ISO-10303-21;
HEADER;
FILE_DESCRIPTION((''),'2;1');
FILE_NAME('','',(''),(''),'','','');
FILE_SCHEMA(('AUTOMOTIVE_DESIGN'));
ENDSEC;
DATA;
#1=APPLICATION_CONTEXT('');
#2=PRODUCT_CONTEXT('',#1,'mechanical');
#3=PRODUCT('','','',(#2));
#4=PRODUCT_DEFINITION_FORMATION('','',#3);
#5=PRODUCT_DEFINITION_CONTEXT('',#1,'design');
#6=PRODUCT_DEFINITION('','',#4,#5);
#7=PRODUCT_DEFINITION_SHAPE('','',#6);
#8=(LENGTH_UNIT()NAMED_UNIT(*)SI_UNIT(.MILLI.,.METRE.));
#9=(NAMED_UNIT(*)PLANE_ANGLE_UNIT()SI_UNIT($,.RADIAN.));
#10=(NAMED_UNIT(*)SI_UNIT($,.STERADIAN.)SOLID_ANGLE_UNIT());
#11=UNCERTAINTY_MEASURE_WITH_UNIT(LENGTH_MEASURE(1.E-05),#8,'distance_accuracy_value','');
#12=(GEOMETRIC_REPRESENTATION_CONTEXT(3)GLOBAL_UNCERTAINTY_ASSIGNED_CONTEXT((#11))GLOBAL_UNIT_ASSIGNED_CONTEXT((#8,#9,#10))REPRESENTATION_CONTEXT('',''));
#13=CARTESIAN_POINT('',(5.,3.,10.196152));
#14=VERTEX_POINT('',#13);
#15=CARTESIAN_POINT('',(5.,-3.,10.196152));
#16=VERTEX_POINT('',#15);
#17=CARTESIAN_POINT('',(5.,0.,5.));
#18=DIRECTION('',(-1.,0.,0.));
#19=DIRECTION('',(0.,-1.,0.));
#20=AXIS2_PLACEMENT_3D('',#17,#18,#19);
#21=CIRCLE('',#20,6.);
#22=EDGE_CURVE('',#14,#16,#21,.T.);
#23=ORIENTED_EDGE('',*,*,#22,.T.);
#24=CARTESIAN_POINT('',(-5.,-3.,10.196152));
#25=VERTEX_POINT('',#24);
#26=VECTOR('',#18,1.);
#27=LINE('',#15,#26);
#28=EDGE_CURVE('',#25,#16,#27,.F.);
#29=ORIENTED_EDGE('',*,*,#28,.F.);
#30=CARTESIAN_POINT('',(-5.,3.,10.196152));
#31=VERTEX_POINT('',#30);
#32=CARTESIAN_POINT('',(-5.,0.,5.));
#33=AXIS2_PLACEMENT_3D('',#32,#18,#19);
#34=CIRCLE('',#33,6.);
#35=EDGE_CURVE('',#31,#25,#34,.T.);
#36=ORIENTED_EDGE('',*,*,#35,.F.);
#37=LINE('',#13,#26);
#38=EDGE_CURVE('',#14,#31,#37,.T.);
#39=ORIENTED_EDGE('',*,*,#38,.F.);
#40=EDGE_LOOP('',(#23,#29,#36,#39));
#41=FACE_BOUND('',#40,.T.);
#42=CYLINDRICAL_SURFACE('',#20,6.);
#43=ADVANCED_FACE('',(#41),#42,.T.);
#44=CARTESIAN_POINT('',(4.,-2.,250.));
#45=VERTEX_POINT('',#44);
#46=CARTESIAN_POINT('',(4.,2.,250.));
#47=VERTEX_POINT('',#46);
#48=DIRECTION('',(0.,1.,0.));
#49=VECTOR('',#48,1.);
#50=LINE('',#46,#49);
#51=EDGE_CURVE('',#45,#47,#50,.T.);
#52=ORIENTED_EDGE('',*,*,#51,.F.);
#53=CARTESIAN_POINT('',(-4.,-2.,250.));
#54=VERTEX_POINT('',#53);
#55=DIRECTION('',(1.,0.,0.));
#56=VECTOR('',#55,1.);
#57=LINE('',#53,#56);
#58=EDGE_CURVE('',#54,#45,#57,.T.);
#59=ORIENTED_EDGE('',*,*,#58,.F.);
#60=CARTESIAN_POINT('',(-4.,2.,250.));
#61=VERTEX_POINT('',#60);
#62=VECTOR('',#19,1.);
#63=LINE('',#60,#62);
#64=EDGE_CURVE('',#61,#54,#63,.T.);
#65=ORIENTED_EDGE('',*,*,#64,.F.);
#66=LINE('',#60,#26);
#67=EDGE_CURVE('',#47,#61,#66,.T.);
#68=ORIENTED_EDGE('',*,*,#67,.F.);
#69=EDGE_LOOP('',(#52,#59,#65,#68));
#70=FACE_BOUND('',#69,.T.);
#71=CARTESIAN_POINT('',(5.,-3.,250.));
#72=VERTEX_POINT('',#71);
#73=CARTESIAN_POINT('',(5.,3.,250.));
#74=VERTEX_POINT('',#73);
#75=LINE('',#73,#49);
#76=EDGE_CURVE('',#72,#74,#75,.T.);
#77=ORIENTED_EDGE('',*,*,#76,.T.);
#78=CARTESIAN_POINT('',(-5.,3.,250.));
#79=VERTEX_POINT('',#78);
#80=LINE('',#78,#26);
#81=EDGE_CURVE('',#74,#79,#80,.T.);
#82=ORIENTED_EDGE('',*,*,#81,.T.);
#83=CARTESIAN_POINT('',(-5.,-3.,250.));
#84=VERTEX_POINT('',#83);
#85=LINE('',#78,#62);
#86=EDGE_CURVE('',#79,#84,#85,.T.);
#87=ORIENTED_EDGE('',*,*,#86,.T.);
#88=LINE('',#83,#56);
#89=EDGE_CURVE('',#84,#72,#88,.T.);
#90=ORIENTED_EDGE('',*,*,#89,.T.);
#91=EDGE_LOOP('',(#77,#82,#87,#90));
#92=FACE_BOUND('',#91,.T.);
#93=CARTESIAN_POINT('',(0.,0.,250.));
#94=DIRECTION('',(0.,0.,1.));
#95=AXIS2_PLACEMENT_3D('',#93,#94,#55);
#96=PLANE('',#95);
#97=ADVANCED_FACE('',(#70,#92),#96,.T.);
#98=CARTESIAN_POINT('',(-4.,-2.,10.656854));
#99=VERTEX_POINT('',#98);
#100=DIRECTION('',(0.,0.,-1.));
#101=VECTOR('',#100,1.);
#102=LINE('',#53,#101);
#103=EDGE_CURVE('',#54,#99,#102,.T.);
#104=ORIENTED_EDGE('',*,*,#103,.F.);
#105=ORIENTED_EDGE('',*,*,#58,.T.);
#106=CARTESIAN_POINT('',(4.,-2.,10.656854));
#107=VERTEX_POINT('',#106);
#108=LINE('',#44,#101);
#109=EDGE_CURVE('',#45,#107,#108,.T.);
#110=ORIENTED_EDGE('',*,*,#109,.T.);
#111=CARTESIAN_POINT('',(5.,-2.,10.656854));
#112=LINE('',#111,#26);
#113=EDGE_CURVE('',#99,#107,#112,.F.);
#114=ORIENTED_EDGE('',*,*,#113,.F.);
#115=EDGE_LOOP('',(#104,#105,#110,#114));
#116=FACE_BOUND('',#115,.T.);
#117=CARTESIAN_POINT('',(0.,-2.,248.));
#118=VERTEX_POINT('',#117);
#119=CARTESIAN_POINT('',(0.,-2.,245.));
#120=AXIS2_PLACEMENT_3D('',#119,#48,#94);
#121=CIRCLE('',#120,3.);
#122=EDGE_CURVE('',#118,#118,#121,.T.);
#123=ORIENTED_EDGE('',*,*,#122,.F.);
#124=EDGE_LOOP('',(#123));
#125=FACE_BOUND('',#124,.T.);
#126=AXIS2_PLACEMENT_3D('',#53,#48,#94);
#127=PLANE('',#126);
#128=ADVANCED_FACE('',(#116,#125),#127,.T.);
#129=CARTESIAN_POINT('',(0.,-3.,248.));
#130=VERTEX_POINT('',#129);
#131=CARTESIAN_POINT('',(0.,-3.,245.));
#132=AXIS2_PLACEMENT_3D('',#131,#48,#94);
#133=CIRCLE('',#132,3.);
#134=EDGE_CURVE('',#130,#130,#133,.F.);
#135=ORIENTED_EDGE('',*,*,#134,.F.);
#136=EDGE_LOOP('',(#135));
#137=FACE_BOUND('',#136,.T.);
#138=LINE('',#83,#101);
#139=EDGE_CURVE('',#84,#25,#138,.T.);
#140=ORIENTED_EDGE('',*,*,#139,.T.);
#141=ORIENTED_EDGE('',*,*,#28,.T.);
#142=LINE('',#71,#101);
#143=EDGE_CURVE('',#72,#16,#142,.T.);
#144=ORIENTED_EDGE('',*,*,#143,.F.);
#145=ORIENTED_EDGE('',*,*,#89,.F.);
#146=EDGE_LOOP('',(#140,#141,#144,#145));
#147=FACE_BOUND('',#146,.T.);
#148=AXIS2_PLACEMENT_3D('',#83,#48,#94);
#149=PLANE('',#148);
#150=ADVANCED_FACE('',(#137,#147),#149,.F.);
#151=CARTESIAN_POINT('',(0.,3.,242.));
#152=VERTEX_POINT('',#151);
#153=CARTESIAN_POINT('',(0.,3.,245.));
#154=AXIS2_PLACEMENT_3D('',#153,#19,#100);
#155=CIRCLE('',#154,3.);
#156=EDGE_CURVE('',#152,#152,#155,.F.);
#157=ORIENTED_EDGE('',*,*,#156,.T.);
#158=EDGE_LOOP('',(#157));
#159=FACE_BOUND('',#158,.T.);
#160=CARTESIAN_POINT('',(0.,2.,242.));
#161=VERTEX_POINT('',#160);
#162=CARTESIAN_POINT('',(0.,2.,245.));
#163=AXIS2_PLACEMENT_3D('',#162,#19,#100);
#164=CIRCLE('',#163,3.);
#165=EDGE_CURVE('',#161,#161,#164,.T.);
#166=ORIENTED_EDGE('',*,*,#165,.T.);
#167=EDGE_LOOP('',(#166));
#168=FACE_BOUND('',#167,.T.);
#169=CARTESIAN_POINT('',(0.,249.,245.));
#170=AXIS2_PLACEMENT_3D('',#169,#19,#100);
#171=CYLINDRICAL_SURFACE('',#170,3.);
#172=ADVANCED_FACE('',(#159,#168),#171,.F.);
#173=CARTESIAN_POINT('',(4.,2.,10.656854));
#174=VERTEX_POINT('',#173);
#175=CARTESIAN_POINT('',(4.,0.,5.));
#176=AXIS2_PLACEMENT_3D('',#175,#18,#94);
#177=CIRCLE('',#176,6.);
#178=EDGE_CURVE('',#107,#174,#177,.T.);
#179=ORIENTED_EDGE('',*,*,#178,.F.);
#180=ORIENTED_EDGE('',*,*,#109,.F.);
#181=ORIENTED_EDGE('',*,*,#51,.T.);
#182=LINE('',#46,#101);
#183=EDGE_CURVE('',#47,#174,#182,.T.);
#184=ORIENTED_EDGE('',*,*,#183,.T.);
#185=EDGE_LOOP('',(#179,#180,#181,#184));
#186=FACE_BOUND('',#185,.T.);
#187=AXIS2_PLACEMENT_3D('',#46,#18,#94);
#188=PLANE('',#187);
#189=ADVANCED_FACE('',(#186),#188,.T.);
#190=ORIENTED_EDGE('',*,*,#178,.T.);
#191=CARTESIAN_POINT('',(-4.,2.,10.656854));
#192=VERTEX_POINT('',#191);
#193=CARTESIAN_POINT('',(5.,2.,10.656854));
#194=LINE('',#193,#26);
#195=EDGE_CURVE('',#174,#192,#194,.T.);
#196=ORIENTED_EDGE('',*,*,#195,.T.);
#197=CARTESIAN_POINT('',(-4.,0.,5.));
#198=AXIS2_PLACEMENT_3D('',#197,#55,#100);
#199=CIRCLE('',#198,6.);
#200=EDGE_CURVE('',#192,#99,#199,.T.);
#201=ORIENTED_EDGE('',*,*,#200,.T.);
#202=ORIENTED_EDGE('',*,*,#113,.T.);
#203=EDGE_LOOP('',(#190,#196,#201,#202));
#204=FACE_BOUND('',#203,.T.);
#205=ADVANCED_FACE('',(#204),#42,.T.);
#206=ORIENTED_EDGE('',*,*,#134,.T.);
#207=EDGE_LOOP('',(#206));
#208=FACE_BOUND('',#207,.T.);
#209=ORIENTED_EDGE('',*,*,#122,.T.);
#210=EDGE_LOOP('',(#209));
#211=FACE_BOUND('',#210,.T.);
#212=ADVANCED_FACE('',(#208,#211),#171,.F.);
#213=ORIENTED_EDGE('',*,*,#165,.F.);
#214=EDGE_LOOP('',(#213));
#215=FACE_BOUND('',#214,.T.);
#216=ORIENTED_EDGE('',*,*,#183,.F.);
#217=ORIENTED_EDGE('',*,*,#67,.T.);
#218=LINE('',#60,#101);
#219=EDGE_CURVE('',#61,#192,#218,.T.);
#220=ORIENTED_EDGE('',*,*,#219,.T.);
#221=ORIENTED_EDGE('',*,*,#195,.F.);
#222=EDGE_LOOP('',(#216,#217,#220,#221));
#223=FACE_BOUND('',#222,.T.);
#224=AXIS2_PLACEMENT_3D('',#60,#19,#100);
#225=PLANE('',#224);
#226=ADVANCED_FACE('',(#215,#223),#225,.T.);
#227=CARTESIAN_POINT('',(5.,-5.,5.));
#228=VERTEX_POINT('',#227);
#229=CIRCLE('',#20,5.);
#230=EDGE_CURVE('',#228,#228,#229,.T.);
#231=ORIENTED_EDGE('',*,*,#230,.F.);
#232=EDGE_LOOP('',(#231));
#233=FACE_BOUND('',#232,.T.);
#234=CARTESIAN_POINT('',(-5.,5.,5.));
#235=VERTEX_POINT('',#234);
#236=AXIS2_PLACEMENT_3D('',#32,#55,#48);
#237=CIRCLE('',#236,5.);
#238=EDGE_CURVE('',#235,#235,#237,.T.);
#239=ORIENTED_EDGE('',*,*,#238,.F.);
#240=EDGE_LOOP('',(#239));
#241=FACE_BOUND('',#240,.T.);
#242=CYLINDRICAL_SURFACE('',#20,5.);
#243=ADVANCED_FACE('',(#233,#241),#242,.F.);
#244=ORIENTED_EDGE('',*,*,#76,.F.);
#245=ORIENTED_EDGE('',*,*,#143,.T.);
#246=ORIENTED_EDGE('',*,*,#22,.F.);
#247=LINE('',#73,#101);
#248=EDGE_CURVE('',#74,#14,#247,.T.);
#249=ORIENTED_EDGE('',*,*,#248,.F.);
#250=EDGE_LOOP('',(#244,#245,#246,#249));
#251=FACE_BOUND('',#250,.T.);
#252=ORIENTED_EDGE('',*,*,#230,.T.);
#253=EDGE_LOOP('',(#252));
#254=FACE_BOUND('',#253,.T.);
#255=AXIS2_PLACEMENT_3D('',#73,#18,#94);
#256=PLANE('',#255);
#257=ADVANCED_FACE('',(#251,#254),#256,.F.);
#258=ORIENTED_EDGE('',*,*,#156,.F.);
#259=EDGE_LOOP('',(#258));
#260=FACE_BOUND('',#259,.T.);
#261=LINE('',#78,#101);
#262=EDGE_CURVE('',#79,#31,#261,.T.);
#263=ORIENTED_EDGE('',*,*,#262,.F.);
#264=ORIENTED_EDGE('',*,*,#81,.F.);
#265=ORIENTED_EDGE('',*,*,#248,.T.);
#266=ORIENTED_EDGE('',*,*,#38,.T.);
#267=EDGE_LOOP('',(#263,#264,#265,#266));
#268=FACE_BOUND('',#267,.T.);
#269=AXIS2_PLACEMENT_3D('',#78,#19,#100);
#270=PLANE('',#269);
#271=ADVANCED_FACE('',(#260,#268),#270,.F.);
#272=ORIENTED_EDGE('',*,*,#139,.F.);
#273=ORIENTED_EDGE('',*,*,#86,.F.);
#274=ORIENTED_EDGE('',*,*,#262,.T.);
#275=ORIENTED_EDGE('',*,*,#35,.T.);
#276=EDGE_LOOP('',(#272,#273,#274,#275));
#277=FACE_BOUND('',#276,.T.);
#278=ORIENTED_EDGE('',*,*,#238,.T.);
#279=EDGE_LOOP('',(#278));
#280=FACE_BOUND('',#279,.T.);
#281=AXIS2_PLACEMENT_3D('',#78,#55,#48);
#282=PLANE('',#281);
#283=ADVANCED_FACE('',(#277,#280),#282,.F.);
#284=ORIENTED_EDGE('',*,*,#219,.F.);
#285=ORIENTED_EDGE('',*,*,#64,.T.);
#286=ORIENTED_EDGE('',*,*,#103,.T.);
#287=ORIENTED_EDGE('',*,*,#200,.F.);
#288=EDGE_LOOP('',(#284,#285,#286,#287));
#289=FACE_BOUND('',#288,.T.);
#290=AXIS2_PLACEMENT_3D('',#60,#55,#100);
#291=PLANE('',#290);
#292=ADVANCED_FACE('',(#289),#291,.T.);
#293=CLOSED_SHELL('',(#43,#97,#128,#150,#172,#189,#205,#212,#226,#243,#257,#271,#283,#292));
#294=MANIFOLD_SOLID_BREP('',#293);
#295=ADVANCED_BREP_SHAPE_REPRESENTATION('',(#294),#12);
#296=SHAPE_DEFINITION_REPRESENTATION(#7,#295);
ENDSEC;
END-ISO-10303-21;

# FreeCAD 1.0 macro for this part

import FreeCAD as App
import Part
import Sketcher
Q = App.Units.Quantity


def add_polygon(sketch, points):
    """Adds a closed chain of lines whose ends are joined by coincident constraints."""
    first, n = sketch.GeometryCount, len(points)
    for a, b in zip(points, points[1:] + points[:1]):
        sketch.addGeometry(Part.LineSegment(App.Vector(*a, 0), App.Vector(*b, 0)), False)
    for i in range(n):
        sketch.addConstraint(Sketcher.Constraint("Coincident", first + i, 2, first + (i + 1) % n, 1))

doc = App.newDocument("Part")
params = doc.addObject("Spreadsheet::Sheet", "Params")
for row, (alias, value) in enumerate([
    ("sketch1_width", "10 mm"),
    ("sketch1_height", "6 mm"),
    ("pad1_length", "250 mm"),
    ("sketch2_diameter", "6 mm"),
    ("sketch3_width", "8 mm"),
    ("sketch3_height", "4 mm"),
    ("sketch4_diameter", "12 mm"),
    ("pad2_length", "10 mm"),
    ("sketch5_diameter", "10 mm"),
], start=1):
    params.set(f"A{row}", alias)
    params.set(f"B{row}", "=" + value)
    params.setAlias(f"B{row}", alias)

body = doc.addObject("PartDesign::Body", "Body")

sketch1 = doc.addObject("Sketcher::SketchObject", "Sketch")
body.addObject(sketch1)
sketch1.AttachmentSupport = (doc.XY_Plane, [""])
sketch1.MapMode = "FlatFace"
add_polygon(sketch1, [(-5, 3), (-5, -3), (5, -3), (5, 3)])
sketch1.addConstraint([
    Sketcher.Constraint("Vertical", 0),
    Sketcher.Constraint("Horizontal", 1),
    Sketcher.Constraint("Vertical", 2),
    Sketcher.Constraint("Horizontal", 3),
    Sketcher.Constraint("Symmetric", 0, 2, 2, 2, -1, 1),
    Sketcher.Constraint("DistanceX", 1, 1, 1, 2, Q("10 mm")),
    Sketcher.Constraint("DistanceY", 0, 2, 0, 1, Q("6 mm")),
])
sketch1.setExpression("Constraints[9]", "Params.sketch1_width")
sketch1.setExpression("Constraints[10]", "Params.sketch1_height")
pad1 = doc.addObject("PartDesign::Pad", "Pad")
body.addObject(pad1)
pad1.Profile = sketch1
pad1.setExpression("Length", "Params.pad1_length")

sketch2 = doc.addObject("Sketcher::SketchObject", "Sketch001")
body.addObject(sketch2)
sketch2.AttachmentSupport = (doc.XZ_Plane, [""])
sketch2.MapMode = "FlatFace"
sketch2.addGeometry(Part.Circle(App.Vector(0, 245, 0), App.Vector(0, 0, 1), 3), False)
sketch2.addConstraint([
    Sketcher.Constraint("PointOnObject", 0, 3, -2),
    Sketcher.Constraint("Diameter", 0, Q("6 mm")),
    Sketcher.Constraint("DistanceY", -1, 1, 0, 3, Q("245 mm")),
])
sketch2.setExpression("Constraints[1]", "Params.sketch2_diameter")
pocket1 = doc.addObject("PartDesign::Pocket", "Pocket")
body.addObject(pocket1)
pocket1.Profile = sketch2
pocket1.Type = "ThroughAll"
pocket1.Midplane = True

sketch3 = doc.addObject("Sketcher::SketchObject", "Sketch002")
body.addObject(sketch3)
sketch3.AttachmentSupport = (doc.XY_Plane, [""])
sketch3.MapMode = "FlatFace"
add_polygon(sketch3, [(-4, 2), (-4, -2), (4, -2), (4, 2)])
sketch3.addConstraint([
    Sketcher.Constraint("Vertical", 0),
    Sketcher.Constraint("Horizontal", 1),
    Sketcher.Constraint("Vertical", 2),
    Sketcher.Constraint("Horizontal", 3),
    Sketcher.Constraint("Symmetric", 0, 2, 2, 2, -1, 1),
    Sketcher.Constraint("DistanceX", 1, 1, 1, 2, Q("8 mm")),
    Sketcher.Constraint("DistanceY", 0, 2, 0, 1, Q("4 mm")),
])
sketch3.setExpression("Constraints[9]", "Params.sketch3_width")
sketch3.setExpression("Constraints[10]", "Params.sketch3_height")
pocket2 = doc.addObject("PartDesign::Pocket", "Pocket001")
body.addObject(pocket2)
pocket2.Profile = sketch3
pocket2.Type = "ThroughAll"
pocket2.Midplane = True

sketch4 = doc.addObject("Sketcher::SketchObject", "Sketch003")
body.addObject(sketch4)
sketch4.AttachmentSupport = (doc.YZ_Plane, [""])
sketch4.MapMode = "FlatFace"
sketch4.AttachmentOffset = App.Placement(App.Vector(0, 0, -5), App.Rotation())
sketch4.addGeometry(Part.Circle(App.Vector(0, 5, 0), App.Vector(0, 0, 1), 6), False)
sketch4.addConstraint([
    Sketcher.Constraint("PointOnObject", 0, 3, -2),
    Sketcher.Constraint("Diameter", 0, Q("12 mm")),
    Sketcher.Constraint("DistanceY", -1, 1, 0, 3, Q("5 mm")),
])
sketch4.setExpression("Constraints[1]", "Params.sketch4_diameter")
pad2 = doc.addObject("PartDesign::Pad", "Pad001")
body.addObject(pad2)
pad2.Profile = sketch4
pad2.setExpression("Length", "Params.pad2_length")

sketch5 = doc.addObject("Sketcher::SketchObject", "Sketch004")
body.addObject(sketch5)
sketch5.AttachmentSupport = (doc.YZ_Plane, [""])
sketch5.MapMode = "FlatFace"
sketch5.AttachmentOffset = App.Placement(App.Vector(0, 0, -5), App.Rotation())
sketch5.addGeometry(Part.Circle(App.Vector(0, 5, 0), App.Vector(0, 0, 1), 5), False)
sketch5.addConstraint([
    Sketcher.Constraint("PointOnObject", 0, 3, -2),
    Sketcher.Constraint("Diameter", 0, Q("10 mm")),
    Sketcher.Constraint("DistanceY", -1, 1, 0, 3, Q("5 mm")),
])
sketch5.setExpression("Constraints[1]", "Params.sketch5_diameter")
pocket3 = doc.addObject("PartDesign::Pocket", "Pocket002")
body.addObject(pocket3)
pocket3.Profile = sketch5
pocket3.Type = "ThroughAll"
pocket3.Midplane = True

doc.recompute()
